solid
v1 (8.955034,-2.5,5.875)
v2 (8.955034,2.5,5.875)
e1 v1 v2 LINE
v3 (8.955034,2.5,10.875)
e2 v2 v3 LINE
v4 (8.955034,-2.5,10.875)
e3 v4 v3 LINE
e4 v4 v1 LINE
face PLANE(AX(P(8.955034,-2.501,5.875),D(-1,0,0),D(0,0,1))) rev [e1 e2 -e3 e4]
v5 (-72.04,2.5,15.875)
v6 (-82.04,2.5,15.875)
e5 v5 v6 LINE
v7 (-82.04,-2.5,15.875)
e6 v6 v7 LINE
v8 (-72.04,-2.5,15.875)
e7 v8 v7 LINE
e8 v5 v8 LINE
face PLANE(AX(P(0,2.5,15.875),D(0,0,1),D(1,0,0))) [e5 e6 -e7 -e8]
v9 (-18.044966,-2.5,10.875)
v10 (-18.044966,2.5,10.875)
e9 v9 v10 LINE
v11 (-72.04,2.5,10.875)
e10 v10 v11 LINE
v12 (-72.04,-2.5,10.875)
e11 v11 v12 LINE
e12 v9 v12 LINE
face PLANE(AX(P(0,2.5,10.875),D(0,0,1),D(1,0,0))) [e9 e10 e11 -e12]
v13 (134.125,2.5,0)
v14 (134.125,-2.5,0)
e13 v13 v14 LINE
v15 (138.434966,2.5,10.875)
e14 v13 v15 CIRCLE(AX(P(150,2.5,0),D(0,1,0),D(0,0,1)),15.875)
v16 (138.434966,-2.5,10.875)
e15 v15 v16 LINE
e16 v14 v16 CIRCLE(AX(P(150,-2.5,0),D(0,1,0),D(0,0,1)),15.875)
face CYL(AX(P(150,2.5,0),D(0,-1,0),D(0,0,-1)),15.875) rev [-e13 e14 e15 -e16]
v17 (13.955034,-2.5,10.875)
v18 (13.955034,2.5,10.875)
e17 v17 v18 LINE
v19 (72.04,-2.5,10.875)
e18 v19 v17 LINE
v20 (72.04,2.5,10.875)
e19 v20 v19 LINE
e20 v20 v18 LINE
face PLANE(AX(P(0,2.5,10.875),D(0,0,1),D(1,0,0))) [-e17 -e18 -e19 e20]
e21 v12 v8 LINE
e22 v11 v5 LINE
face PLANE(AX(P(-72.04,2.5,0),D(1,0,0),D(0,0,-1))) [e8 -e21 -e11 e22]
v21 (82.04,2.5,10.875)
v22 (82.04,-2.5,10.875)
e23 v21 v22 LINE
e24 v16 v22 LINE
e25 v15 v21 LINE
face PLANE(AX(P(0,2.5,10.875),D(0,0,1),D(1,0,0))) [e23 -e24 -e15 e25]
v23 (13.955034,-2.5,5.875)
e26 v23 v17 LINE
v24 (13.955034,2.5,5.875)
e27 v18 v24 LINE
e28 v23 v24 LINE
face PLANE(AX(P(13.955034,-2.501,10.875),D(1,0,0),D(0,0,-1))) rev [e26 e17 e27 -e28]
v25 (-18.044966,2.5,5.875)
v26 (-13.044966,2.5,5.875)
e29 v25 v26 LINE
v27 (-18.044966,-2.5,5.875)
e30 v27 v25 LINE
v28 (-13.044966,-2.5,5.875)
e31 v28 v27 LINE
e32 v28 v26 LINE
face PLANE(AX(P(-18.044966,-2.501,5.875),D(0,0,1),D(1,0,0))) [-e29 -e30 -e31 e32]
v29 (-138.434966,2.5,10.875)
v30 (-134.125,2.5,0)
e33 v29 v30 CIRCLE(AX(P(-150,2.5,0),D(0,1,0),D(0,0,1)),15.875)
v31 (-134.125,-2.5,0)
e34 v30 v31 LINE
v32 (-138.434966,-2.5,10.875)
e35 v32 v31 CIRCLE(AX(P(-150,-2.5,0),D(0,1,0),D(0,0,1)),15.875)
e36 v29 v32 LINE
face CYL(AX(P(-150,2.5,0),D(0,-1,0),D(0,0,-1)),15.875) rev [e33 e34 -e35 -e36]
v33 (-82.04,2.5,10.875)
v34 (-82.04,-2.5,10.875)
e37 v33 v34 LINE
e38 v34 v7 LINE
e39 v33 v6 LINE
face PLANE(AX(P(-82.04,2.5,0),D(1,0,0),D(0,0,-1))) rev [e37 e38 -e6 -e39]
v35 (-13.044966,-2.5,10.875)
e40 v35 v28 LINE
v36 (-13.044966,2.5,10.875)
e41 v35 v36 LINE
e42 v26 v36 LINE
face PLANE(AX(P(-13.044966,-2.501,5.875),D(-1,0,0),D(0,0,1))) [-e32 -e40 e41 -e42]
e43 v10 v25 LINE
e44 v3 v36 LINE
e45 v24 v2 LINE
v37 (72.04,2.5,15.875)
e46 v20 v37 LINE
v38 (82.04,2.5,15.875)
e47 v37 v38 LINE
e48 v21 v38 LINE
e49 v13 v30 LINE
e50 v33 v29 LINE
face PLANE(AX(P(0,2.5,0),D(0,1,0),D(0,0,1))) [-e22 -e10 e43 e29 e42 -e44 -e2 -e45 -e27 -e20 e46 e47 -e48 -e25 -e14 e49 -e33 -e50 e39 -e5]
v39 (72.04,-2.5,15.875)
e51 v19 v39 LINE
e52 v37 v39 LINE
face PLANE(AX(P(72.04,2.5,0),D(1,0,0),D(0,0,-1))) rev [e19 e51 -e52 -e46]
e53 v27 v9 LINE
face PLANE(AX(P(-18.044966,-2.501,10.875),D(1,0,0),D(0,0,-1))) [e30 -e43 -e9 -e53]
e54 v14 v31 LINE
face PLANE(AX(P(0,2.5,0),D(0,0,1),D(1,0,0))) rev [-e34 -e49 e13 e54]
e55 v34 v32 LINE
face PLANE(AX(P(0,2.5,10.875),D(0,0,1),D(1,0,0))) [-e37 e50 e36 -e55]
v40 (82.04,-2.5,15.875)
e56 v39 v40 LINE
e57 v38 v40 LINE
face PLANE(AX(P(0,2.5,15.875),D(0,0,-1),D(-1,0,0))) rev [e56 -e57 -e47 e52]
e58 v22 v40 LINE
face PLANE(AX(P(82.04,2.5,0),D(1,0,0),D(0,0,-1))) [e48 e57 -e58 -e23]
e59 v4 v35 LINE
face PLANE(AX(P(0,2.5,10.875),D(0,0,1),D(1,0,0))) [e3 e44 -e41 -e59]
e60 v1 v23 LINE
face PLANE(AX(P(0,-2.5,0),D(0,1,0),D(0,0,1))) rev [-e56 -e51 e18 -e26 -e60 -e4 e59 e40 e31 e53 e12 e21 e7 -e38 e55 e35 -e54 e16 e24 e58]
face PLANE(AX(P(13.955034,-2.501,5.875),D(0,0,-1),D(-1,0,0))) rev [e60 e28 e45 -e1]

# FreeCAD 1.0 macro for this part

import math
import FreeCAD as App
import Part
import Sketcher

V = App.Vector
Q = App.Units.Quantity


def add_polygon(sketch, points):
    """Adds a closed chain of lines whose ends are joined by coincident constraints."""
    first, n = sketch.GeometryCount, len(points)
    for a, b in zip(points, points[1:] + points[:1]):
        sketch.addGeometry(Part.LineSegment(App.Vector(*a, 0), App.Vector(*b, 0)), False)
    for i in range(n):
        sketch.addConstraint(Sketcher.Constraint("Coincident", first + i, 2, first + (i + 1) % n, 1))

doc = App.newDocument("Part")
body = doc.addObject("PartDesign::Body", "Body")

# Sketch on XZ plane
sketch1 = body.newObject("Sketcher::SketchObject", "Sketch")
sketch1.AttachmentSupport = (doc.getObject("XZ_Plane"), [""])
sketch1.MapMode = "FlatFace"
sketch1.addGeometry([
    Part.ArcOfCircle(Part.Circle(V(-150, 0, 0), V(0, 0, 1), 15.875), math.radians(0), math.radians(43.238703)),  # 0
    Part.LineSegment(V(-138.434966, 10.875, 0), V(-82.04, 10.875, 0)),  # 1
    Part.LineSegment(V(-82.04, 10.875, 0), V(-82.04, 15.875, 0)),  # 2
    Part.LineSegment(V(-82.04, 15.875, 0), V(-72.04, 15.875, 0)),  # 3
    Part.LineSegment(V(-72.04, 15.875, 0), V(-72.04, 10.875, 0)),  # 4
    Part.LineSegment(V(-72.04, 10.875, 0), V(72.04, 10.875, 0)),  # 5
    Part.LineSegment(V(72.04, 10.875, 0), V(72.04, 15.875, 0)),  # 6
    Part.LineSegment(V(72.04, 15.875, 0), V(82.04, 15.875, 0)),  # 7
    Part.LineSegment(V(82.04, 15.875, 0), V(82.04, 10.875, 0)),  # 8
    Part.LineSegment(V(82.04, 10.875, 0), V(138.434966, 10.875, 0)),  # 9
    Part.ArcOfCircle(Part.Circle(V(150, 0, 0), V(0, 0, 1), 15.875), math.radians(136.761297), math.radians(180)),  # 10
    Part.LineSegment(V(134.125, 0, 0), V(-134.125, 0, 0)),  # 11
], False)
sketch1.addConstraint([
    Sketcher.Constraint("Coincident", 0, 2, 1, 1),
    Sketcher.Constraint("Coincident", 1, 2, 2, 1),
    Sketcher.Constraint("Coincident", 2, 2, 3, 1),
    Sketcher.Constraint("Coincident", 3, 2, 4, 1),
    Sketcher.Constraint("Coincident", 4, 2, 5, 1),
    Sketcher.Constraint("Coincident", 5, 2, 6, 1),
    Sketcher.Constraint("Coincident", 6, 2, 7, 1),
    Sketcher.Constraint("Coincident", 7, 2, 8, 1),
    Sketcher.Constraint("Coincident", 8, 2, 9, 1),
    Sketcher.Constraint("Coincident", 9, 2, 10, 1),
    Sketcher.Constraint("Coincident", 10, 2, 11, 1),
    Sketcher.Constraint("Coincident", 11, 2, 0, 1),
    Sketcher.Constraint("Horizontal", 1),
    Sketcher.Constraint("Vertical", 2),
    Sketcher.Constraint("Horizontal", 3),
    Sketcher.Constraint("Vertical", 4),
    Sketcher.Constraint("Horizontal", 5),
    Sketcher.Constraint("Vertical", 6),
    Sketcher.Constraint("Horizontal", 7),
    Sketcher.Constraint("Vertical", 8),
    Sketcher.Constraint("Horizontal", 9),
    Sketcher.Constraint("Horizontal", 11),
    Sketcher.Constraint("Equal", 0, 10),
    Sketcher.Constraint("Symmetric", 0, 3, 10, 3, -1, 1),
    Sketcher.Constraint("Symmetric", 3, 2, 6, 2, -2),
    Sketcher.Constraint("Symmetric", 1, 2, 8, 2, -2),
    Sketcher.Constraint("PointOnObject", 0, 3, -1),
    Sketcher.Constraint("PointOnObject", 10, 2, -1),
    Sketcher.Constraint("Horizontal", 1, 2, 4, 2),
    Sketcher.Constraint("DistanceX", 3, 1, 3, 2, Q("10 mm")),
    Sketcher.Constraint("DistanceY", 2, 1, 2, 2, Q("5 mm")),
    Sketcher.Constraint("DistanceX", 0, 3, -1, 1, Q("150 mm")),
    Sketcher.Constraint("Radius", 0, Q("15.875 mm")),
    Sketcher.Constraint("DistanceX", 5, 1, 5, 2, Q("144.08 mm")),
    Sketcher.Constraint("DistanceY", -1, 1, 0, 2, Q("10.875 mm")),
])
pad1 = body.newObject("PartDesign::Pad", "Pad")
pad1.Profile = sketch1
pad1.Length = 5
pad1.Midplane = True

# Sketch on XZ plane
sketch2 = body.newObject("Sketcher::SketchObject", "Sketch001")
sketch2.AttachmentSupport = (doc.getObject("XZ_Plane"), [""])
sketch2.MapMode = "FlatFace"
sketch2.AttachmentOffset = App.Placement(V(0, 0, -2.5), App.Rotation())
add_polygon(sketch2, [(13.955034, 10.875), (13.955034, 5.875), (8.955034, 5.875), (8.955034, 10.875)])  # lines 0-3
sketch2.addConstraint([
    Sketcher.Constraint("Vertical", 0),
    Sketcher.Constraint("Horizontal", 1),
    Sketcher.Constraint("Vertical", 2),
    Sketcher.Constraint("Horizontal", 3),
    Sketcher.Constraint("Equal", 3, 0),
    Sketcher.Constraint("DistanceX", 1, 2, 1, 1, Q("5 mm")),
    Sketcher.Constraint("DistanceY", -1, 1, 0, 2, Q("5.875 mm")),
    Sketcher.Constraint("DistanceX", -1, 1, 0, 2, Q("13.955034 mm")),
])
pocket1 = body.newObject("PartDesign::Pocket", "Pocket")
pocket1.Profile = sketch2
pocket1.Type = "UpToFirst"
pocket1.Reversed = True

# Sketch on XZ plane
sketch3 = body.newObject("Sketcher::SketchObject", "Sketch002")
sketch3.AttachmentSupport = (doc.getObject("XZ_Plane"), [""])
sketch3.MapMode = "FlatFace"
sketch3.AttachmentOffset = App.Placement(V(0, 0, -2.5), App.Rotation())
add_polygon(sketch3, [(-13.044966, 10.875), (-13.044966, 5.875), (-18.044966, 5.875), (-18.044966, 10.875)])  # lines 0-3
sketch3.addConstraint([
    Sketcher.Constraint("Vertical", 0),
    Sketcher.Constraint("Horizontal", 1),
    Sketcher.Constraint("Vertical", 2),
    Sketcher.Constraint("Horizontal", 3),
    Sketcher.Constraint("Equal", 3, 0),
    Sketcher.Constraint("DistanceX", 1, 2, 1, 1, Q("5 mm")),
    Sketcher.Constraint("DistanceY", -1, 1, 0, 2, Q("5.875 mm")),
    Sketcher.Constraint("DistanceX", 0, 2, -1, 1, Q("13.044966 mm")),
])
pocket2 = body.newObject("PartDesign::Pocket", "Pocket001")
pocket2.Profile = sketch3
pocket2.Type = "UpToFirst"
pocket2.Reversed = True

doc.recompute()
